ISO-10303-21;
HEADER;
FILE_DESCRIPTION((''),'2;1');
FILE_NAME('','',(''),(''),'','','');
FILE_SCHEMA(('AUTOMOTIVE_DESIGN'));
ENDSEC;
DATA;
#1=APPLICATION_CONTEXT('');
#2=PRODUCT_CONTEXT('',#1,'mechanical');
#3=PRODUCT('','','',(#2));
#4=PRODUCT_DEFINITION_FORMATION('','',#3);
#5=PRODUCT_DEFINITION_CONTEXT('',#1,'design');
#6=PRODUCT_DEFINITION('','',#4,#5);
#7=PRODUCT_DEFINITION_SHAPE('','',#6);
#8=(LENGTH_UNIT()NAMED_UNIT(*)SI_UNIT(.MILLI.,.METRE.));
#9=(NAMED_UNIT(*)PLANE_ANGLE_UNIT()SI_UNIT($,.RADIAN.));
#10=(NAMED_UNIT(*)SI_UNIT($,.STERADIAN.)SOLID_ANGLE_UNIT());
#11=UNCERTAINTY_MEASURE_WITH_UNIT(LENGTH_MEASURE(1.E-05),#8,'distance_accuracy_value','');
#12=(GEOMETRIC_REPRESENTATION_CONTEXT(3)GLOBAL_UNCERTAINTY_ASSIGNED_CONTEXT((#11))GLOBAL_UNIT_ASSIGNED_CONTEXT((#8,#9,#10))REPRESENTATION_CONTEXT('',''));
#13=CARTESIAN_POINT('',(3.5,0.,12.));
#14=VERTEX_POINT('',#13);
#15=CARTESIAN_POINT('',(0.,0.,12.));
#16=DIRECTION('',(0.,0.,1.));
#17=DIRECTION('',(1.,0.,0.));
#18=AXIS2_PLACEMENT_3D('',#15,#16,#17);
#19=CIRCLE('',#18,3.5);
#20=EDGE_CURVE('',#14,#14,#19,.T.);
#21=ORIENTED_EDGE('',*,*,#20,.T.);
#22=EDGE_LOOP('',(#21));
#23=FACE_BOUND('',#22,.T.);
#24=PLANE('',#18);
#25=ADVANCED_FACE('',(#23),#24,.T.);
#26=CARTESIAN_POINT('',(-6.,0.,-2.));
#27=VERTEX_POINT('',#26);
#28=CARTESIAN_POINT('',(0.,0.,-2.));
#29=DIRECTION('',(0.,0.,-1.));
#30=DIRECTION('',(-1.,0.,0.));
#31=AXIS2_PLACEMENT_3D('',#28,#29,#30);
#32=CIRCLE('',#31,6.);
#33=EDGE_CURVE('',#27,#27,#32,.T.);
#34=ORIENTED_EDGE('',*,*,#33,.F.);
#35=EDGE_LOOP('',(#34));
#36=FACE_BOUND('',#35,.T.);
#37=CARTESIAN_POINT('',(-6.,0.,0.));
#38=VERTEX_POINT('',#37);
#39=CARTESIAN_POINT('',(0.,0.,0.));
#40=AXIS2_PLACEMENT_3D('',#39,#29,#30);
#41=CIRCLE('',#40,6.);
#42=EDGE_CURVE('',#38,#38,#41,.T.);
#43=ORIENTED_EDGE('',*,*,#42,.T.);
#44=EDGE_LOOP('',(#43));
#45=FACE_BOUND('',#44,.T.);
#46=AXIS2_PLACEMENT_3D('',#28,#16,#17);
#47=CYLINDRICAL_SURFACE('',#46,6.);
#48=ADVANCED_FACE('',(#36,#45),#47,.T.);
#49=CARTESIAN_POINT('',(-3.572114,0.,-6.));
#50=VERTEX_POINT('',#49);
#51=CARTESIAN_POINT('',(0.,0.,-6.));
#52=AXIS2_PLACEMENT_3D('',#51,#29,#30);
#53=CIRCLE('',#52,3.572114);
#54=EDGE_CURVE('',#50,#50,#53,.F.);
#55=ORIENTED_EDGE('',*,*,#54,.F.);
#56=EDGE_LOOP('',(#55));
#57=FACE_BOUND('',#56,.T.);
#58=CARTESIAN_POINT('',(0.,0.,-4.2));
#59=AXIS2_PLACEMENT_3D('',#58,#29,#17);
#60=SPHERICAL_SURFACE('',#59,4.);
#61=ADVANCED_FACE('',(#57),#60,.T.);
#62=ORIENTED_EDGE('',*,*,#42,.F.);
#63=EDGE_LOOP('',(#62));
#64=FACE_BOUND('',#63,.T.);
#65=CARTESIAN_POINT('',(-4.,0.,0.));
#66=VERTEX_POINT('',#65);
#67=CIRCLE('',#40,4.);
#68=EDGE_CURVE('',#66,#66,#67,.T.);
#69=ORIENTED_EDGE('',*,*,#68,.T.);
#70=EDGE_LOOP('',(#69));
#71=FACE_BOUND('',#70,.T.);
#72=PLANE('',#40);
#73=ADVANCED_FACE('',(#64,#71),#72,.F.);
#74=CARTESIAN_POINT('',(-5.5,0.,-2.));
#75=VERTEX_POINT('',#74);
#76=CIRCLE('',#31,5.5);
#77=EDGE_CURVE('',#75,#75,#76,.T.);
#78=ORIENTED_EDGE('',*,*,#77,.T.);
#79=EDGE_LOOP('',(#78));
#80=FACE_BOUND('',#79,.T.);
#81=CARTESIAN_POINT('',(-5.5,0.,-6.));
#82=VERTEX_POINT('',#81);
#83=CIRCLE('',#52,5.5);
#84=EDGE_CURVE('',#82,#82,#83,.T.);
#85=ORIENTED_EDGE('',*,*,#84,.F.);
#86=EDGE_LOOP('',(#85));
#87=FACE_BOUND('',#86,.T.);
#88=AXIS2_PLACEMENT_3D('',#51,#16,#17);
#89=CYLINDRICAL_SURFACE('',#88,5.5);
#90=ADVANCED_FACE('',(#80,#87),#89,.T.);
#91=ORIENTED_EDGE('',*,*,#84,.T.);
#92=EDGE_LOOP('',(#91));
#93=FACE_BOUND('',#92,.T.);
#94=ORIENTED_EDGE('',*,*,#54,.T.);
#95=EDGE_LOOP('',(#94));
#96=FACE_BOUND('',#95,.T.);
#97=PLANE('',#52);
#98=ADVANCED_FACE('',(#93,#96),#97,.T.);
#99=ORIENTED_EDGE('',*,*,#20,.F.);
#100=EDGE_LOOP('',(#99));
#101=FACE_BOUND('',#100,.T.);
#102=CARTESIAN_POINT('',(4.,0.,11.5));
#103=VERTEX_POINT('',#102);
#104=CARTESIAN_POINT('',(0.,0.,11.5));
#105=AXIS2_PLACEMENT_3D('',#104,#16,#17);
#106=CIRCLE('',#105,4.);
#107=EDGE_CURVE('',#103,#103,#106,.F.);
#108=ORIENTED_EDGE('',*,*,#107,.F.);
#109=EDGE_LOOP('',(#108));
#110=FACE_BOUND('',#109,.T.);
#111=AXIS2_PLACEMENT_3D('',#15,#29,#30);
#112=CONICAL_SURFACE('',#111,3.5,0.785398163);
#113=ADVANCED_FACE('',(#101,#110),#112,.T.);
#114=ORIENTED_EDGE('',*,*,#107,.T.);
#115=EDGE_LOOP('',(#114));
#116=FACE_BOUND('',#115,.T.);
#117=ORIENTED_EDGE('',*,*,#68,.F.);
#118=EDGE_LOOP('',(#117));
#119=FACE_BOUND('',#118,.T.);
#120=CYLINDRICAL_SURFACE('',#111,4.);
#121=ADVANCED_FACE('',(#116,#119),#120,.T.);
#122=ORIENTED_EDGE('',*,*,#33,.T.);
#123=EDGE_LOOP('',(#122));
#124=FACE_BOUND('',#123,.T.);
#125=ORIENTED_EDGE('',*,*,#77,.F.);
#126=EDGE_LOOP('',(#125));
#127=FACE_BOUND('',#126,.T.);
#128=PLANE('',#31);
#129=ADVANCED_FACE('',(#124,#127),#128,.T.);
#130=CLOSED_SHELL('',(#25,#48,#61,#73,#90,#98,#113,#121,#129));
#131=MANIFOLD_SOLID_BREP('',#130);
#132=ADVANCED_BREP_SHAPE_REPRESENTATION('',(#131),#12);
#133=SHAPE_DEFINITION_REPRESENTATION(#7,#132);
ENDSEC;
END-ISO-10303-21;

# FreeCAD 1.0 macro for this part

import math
import FreeCAD as App
import Part
import Sketcher


def edges_at(feature, points):
    """Names of the edges that pass closest to the given points."""
    edges = feature.Shape.Edges
    near = lambda p: min(range(len(edges)), key=lambda i: edges[i].distToShape(Part.Vertex(*p))[0])
    return sorted({f"Edge{near(p) + 1}" for p in points})

doc = App.newDocument("Part")
body = doc.addObject("PartDesign::Body", "Body")

# Sketch on XY plane
sketch1 = body.newObject("Sketcher::SketchObject", "Sketch")
sketch1.AttachmentSupport = (doc.getObject("XY_Plane"), [""])
sketch1.MapMode = "FlatFace"
sketch1.addGeometry(Part.Circle(App.Vector(0, 0, 0), App.Vector(0, 0, 1), 4), False)
sketch1.addConstraint([
    Sketcher.Constraint("Coincident", 0, 3, -1, 1),
    Sketcher.Constraint("Diameter", 0, 8.0),
])
pad1 = body.newObject("PartDesign::Pad", "Pad")
pad1.Profile = sketch1
pad1.Length = 12

# Sketch on XY plane
sketch2 = body.newObject("Sketcher::SketchObject", "Sketch001")
sketch2.AttachmentSupport = (doc.getObject("XY_Plane"), [""])
sketch2.MapMode = "FlatFace"
sketch2.addGeometry(Part.Circle(App.Vector(0, 0, 0), App.Vector(0, 0, 1), 6), False)
sketch2.addConstraint([
    Sketcher.Constraint("Coincident", 0, 3, -1, 1),
    Sketcher.Constraint("Diameter", 0, 12.0),
])
pad2 = body.newObject("PartDesign::Pad", "Pad001")
pad2.Profile = sketch2
pad2.Length = 2
pad2.Reversed = True

# Sketch on XY plane
sketch3 = body.newObject("Sketcher::SketchObject", "Sketch002")
sketch3.AttachmentSupport = (doc.getObject("XY_Plane"), [""])
sketch3.MapMode = "FlatFace"
sketch3.AttachmentOffset = App.Placement(App.Vector(0, 0, -2), App.Rotation())
sketch3.addGeometry(Part.Circle(App.Vector(0, 0, 0), App.Vector(0, 0, 1), 5.5), False)
sketch3.addConstraint([
    Sketcher.Constraint("Coincident", 0, 3, -1, 1),
    Sketcher.Constraint("Diameter", 0, 11.0),
])
pad3 = body.newObject("PartDesign::Pad", "Pad002")
pad3.Profile = sketch3
pad3.Length = 4
pad3.Reversed = True

# Sketch on XZ plane
sketch4 = body.newObject("Sketcher::SketchObject", "Sketch003")
sketch4.AttachmentSupport = (doc.getObject("XZ_Plane"), [""])
sketch4.MapMode = "FlatFace"
sketch4.addGeometry([
    Part.LineSegment(App.Vector(0, -8.2, 0), App.Vector(0, -0.2, 0)),
    Part.ArcOfCircle(Part.Circle(App.Vector(0, -4.2, 0), App.Vector(0, 0, 1), 4), math.radians(-90), math.radians(90)),
], False)
sketch4.addConstraint([
    Sketcher.Constraint("Coincident", 0, 1, 1, 1),
    Sketcher.Constraint("Coincident", 1, 2, 0, 2),
    Sketcher.Constraint("Vertical", 0),
    Sketcher.Constraint("PointOnObject", 1, 3, -2),
    Sketcher.Constraint("PointOnObject", 0, 1, -2),
    Sketcher.Constraint("Radius", 1, 4.0),
    Sketcher.Constraint("DistanceY", 1, 3, -1, 1, 4.2),
])
revolution = body.newObject("PartDesign::Revolution", "Revolution")
revolution.Profile = sketch4
revolution.ReferenceAxis = (sketch4, ["V_Axis"])
revolution.Angle = 360
doc.recompute()

chamfer = body.newObject("PartDesign::Chamfer", "Chamfer")
chamfer.Base = (revolution, edges_at(revolution, [(-4, 0, 12)]))
chamfer.Size = 0.5

doc.recompute()
